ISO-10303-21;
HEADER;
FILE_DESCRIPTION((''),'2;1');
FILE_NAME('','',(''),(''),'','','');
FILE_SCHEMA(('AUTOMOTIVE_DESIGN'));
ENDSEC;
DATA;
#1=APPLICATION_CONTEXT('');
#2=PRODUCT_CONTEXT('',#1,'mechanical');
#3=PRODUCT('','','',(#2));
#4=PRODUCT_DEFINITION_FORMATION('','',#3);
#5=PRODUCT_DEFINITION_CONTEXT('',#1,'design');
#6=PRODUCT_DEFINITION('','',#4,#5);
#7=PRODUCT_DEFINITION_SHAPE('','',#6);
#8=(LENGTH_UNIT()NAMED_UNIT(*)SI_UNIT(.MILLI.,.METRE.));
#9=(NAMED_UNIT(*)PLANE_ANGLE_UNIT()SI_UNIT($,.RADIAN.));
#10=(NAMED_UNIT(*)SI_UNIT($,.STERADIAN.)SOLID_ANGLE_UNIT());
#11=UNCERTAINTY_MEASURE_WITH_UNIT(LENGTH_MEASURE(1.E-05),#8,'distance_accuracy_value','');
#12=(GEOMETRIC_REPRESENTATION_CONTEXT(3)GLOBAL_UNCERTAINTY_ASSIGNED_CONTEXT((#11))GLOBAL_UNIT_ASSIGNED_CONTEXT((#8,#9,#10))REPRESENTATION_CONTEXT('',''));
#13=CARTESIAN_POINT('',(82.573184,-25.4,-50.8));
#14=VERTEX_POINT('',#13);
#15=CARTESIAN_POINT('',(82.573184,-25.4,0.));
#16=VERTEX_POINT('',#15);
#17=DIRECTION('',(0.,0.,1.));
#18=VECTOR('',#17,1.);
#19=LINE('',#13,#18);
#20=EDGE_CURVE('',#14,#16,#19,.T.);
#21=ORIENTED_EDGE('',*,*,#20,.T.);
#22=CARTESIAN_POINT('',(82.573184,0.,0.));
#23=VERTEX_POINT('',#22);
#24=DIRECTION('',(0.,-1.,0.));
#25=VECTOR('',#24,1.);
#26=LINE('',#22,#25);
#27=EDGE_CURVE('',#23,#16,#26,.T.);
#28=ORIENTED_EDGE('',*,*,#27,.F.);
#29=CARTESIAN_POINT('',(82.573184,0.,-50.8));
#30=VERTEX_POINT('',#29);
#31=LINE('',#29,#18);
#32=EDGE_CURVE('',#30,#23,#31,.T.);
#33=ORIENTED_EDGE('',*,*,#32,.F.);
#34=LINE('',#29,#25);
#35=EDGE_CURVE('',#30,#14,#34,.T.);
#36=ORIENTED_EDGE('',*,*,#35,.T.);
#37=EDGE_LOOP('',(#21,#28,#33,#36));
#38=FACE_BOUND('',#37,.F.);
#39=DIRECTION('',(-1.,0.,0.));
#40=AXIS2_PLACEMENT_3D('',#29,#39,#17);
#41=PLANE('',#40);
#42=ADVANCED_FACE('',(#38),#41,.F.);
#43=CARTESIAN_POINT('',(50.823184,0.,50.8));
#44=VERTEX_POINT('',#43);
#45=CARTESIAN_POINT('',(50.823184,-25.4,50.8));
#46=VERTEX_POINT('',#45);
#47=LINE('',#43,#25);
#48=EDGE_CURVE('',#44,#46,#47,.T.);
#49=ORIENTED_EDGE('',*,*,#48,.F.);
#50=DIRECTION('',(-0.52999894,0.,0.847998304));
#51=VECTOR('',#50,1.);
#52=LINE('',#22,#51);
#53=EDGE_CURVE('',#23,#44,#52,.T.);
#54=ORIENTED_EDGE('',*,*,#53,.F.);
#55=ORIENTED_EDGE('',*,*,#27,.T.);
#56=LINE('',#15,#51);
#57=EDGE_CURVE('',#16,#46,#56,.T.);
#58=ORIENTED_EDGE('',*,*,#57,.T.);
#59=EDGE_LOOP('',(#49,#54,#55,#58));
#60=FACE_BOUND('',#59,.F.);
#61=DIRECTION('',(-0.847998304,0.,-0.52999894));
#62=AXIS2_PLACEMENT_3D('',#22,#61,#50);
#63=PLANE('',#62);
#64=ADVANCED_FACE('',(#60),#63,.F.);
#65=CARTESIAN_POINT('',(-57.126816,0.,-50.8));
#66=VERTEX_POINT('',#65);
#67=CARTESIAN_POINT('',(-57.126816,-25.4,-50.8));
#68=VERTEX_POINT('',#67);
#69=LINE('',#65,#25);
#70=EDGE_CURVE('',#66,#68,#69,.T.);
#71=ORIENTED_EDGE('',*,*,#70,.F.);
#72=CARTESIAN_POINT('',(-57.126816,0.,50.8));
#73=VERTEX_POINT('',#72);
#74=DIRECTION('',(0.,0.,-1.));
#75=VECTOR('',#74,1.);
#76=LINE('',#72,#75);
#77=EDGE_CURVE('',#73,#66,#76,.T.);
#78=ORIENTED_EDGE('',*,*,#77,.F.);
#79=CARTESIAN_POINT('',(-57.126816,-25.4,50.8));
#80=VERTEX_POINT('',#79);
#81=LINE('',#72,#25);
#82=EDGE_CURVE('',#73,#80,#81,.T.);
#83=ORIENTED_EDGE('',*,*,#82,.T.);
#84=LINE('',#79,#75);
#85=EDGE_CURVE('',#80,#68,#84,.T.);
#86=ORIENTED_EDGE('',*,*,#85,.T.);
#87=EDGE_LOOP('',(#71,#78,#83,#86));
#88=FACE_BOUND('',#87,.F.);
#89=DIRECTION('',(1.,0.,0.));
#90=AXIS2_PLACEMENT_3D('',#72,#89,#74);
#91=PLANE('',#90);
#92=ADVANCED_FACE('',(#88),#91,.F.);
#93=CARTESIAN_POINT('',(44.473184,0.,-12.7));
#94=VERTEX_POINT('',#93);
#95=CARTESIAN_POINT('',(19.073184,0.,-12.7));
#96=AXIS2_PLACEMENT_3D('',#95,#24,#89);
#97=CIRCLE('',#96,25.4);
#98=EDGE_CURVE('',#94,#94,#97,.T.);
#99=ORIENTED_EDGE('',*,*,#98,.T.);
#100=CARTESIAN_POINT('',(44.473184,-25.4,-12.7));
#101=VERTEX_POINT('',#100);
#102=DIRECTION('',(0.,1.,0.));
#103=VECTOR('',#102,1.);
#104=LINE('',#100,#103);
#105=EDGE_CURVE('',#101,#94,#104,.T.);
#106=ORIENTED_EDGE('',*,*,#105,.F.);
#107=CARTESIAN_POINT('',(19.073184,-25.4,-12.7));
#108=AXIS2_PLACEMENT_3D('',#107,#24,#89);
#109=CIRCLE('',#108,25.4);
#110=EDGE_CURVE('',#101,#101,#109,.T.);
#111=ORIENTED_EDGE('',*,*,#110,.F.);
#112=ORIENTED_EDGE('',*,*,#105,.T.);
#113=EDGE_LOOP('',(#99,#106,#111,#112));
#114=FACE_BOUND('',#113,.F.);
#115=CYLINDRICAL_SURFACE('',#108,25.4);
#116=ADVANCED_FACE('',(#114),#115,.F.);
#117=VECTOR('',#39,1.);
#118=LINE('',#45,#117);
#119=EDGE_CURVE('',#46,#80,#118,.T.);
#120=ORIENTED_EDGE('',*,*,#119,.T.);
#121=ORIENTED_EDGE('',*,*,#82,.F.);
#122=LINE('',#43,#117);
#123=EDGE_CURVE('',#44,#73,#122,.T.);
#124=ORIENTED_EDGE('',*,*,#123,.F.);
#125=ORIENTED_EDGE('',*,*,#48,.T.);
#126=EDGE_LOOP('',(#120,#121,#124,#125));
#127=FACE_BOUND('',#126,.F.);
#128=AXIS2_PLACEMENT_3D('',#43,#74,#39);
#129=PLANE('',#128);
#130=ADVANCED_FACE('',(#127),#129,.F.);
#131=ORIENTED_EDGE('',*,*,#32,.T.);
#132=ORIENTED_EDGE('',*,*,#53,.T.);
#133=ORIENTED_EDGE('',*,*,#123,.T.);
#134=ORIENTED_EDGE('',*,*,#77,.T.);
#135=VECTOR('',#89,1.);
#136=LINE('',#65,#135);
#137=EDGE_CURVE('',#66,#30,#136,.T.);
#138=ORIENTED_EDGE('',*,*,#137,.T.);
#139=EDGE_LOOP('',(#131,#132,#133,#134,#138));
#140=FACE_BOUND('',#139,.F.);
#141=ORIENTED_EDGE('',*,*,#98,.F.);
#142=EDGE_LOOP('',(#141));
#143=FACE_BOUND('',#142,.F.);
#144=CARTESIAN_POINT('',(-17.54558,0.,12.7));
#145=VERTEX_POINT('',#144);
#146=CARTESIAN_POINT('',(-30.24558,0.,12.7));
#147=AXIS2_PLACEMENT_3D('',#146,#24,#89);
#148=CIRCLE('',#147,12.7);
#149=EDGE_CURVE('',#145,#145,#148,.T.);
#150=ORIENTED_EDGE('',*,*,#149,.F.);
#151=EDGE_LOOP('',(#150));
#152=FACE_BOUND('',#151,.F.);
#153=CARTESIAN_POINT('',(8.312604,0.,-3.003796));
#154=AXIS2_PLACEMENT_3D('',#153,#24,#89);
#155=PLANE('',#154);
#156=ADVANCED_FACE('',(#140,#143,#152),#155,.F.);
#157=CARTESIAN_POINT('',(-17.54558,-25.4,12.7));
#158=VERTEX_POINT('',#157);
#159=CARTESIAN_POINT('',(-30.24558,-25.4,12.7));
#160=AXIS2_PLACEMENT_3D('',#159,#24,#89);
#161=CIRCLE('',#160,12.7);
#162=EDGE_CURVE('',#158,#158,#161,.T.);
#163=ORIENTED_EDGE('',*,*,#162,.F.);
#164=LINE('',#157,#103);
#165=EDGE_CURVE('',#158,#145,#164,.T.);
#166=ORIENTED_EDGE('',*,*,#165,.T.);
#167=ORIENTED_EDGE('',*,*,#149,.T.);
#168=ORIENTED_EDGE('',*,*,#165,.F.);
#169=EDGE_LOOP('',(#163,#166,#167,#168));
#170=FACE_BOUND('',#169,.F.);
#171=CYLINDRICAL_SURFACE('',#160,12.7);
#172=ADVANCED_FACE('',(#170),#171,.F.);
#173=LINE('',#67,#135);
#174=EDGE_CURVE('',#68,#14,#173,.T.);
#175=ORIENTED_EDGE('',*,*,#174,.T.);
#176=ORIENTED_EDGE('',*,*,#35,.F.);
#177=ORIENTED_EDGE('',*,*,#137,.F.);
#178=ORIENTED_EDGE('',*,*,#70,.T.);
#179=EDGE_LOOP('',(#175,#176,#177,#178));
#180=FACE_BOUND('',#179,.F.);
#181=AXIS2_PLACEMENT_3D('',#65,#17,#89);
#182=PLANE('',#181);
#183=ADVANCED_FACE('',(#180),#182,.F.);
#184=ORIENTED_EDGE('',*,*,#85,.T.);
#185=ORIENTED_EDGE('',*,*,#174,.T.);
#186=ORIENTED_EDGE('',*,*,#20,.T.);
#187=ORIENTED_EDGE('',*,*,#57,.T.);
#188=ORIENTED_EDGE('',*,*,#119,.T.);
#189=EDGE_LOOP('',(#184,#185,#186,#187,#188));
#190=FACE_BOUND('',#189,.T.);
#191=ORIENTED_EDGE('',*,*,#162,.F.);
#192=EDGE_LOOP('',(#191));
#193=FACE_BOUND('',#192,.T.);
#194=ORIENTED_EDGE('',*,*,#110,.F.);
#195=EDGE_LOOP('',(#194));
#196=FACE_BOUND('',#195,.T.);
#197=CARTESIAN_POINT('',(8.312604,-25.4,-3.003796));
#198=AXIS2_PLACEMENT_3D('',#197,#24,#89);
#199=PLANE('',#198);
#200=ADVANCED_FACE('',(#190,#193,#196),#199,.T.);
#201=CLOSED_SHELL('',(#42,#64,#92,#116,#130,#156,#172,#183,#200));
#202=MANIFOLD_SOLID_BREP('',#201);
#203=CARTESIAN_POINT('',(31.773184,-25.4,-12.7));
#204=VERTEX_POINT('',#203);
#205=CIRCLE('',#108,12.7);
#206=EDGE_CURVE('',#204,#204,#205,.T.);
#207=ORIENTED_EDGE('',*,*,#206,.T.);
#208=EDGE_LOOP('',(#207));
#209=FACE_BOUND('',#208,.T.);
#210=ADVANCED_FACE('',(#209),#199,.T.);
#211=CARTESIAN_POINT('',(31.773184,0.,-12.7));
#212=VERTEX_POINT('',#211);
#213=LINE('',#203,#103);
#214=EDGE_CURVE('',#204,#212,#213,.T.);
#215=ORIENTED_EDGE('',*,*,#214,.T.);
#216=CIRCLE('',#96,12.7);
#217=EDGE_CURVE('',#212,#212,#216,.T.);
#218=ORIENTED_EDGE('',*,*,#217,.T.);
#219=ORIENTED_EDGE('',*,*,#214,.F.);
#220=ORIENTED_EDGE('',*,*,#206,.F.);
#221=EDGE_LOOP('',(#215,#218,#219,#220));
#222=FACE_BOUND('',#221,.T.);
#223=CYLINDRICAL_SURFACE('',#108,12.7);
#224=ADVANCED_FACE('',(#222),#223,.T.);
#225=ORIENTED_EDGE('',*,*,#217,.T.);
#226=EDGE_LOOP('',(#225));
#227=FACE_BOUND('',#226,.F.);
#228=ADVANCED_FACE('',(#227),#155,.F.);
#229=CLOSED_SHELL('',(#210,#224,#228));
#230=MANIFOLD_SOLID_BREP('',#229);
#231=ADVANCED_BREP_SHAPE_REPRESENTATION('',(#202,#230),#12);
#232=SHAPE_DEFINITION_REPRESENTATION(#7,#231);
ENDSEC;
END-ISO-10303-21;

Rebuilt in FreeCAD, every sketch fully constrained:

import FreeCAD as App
import Part
import Sketcher
Q = App.Units.Quantity


def add_polygon(sketch, points):
    """Adds a closed chain of lines whose ends are joined by coincident constraints."""
    first, n = sketch.GeometryCount, len(points)
    for a, b in zip(points, points[1:] + points[:1]):
        sketch.addGeometry(Part.LineSegment(App.Vector(*a, 0), App.Vector(*b, 0)), False)
    for i in range(n):
        sketch.addConstraint(Sketcher.Constraint("Coincident", first + i, 2, first + (i + 1) % n, 1))

doc = App.newDocument("Part")
body = doc.addObject("PartDesign::Body", "Body")
body.AllowCompound = True

sketch1 = body.newObject("Sketcher::SketchObject", "Sketch")
sketch1.AttachmentSupport = (doc.getObject("XZ_Plane"), [""])
sketch1.MapMode = "FlatFace"
add_polygon(sketch1, [(51, 51), (-57, 51), (-57, -51), (83, -51), (83, 0)])
sketch1.addConstraint(Sketcher.Constraint("Horizontal", 0))
sketch1.addConstraint(Sketcher.Constraint("Vertical", 1))
sketch1.addConstraint(Sketcher.Constraint("Horizontal", 2))
sketch1.addConstraint(Sketcher.Constraint("Vertical", 3))
sketch1.addConstraint(Sketcher.Constraint("PointOnObject", 3, 2, -1))
sketch1.addConstraint(Sketcher.Constraint("DistanceY", 1, 2, 1, 1, Q("4 in")))
sketch1.addConstraint(Sketcher.Constraint("DistanceY", 3, 1, 3, 2, Q("2 in")))
sketch1.addConstraint(Sketcher.Constraint("DistanceX", 2, 1, 2, 2, Q("5.5 in")))
sketch1.addConstraint(Sketcher.Constraint("DistanceX", 0, 2, 0, 1, Q("4.25 in")))
sketch1.addConstraint(Sketcher.Constraint("DistanceX", 0, 2, -1, 1, 57.126816))
pad1 = body.newObject("PartDesign::Pad", "Pad")
pad1.Profile = sketch1
pad1.Length = Q("1 in")

sketch2 = body.newObject("Sketcher::SketchObject", "Sketch001")
sketch2.AttachmentSupport = (doc.getObject("XZ_Plane"), [""])
sketch2.MapMode = "FlatFace"
sketch2.AttachmentOffset = App.Placement(App.Vector(0, 0, 1 * 25.4), App.Rotation())
sketch2.addGeometry(Part.Circle(App.Vector(-30, 13, 0), App.Vector(0, 0, 1), 13), False)
sketch2.addGeometry(Part.Circle(App.Vector(19, -13, 0), App.Vector(0, 0, 1), 25), False)
sketch2.addGeometry(Part.Circle(App.Vector(19, -13, 0), App.Vector(0, 0, 1), 13), False)
sketch2.addConstraint(Sketcher.Constraint("Coincident", 2, 3, 1, 3))
sketch2.addConstraint(Sketcher.Constraint("Equal", 0, 2))
sketch2.addConstraint(Sketcher.Constraint("Diameter", 0, Q("1 in")))
sketch2.addConstraint(Sketcher.Constraint("Diameter", 1, Q("2 in")))
sketch2.addConstraint(Sketcher.Constraint("DistanceY", 1, 3, 0, 3, Q("1 in")))
sketch2.addConstraint(Sketcher.Constraint("DistanceY", -1, 1, 0, 3, Q("0.5 in")))
sketch2.addConstraint(Sketcher.Constraint("DistanceX", 0, 3, -1, 1, 30.24558))
sketch2.addConstraint(Sketcher.Constraint("DistanceX", -1, 1, 1, 3, 19.073184))
pocket1 = body.newObject("PartDesign::Pocket", "Pocket")
pocket1.Profile = sketch2
pocket1.Length = Q("1 in")

doc.recompute()
